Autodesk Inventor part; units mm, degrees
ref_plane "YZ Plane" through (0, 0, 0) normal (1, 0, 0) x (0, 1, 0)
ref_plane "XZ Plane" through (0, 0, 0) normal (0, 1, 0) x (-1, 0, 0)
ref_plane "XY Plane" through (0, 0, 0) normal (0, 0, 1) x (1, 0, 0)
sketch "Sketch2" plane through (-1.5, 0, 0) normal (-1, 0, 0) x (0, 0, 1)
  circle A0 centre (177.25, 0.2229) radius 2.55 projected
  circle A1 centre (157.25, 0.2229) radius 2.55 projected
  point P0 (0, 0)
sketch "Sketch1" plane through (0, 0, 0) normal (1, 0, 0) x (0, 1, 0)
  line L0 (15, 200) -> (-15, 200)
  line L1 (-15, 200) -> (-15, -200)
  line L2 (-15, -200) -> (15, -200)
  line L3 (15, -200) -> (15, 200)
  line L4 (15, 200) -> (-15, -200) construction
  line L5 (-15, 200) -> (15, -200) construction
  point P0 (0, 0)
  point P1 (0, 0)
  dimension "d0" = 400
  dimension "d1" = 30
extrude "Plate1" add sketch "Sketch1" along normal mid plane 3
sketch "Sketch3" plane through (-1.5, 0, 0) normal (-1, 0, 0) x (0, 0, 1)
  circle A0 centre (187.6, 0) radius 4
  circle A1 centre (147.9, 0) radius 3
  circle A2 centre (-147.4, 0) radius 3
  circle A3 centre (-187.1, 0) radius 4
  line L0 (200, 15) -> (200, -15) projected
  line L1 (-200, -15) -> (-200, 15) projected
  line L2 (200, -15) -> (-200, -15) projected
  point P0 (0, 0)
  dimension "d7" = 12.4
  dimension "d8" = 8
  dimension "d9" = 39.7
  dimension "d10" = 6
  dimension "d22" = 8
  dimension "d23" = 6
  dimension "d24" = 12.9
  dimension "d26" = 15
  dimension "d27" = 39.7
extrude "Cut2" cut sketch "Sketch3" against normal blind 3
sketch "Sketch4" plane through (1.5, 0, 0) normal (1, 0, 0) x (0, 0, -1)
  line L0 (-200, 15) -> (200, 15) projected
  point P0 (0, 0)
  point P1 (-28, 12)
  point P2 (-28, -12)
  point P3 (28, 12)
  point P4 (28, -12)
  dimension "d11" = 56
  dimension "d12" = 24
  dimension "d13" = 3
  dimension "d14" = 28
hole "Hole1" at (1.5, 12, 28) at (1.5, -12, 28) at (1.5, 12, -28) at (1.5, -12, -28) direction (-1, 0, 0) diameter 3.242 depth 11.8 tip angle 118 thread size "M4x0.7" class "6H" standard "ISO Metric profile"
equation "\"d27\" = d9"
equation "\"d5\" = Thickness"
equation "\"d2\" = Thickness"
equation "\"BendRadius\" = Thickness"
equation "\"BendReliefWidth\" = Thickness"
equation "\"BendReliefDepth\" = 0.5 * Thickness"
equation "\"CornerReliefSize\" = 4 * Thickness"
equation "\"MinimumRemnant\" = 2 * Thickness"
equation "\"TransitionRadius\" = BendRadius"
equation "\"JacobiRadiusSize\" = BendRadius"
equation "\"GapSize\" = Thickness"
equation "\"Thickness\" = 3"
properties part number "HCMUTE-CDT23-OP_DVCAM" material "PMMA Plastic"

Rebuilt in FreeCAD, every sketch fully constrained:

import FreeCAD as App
import Part
import Sketcher

doc = App.newDocument("Part")
body = doc.addObject("PartDesign::Body", "Body")

sketch1 = body.newObject("Sketcher::SketchObject", "Sketch")
sketch1.AttachmentSupport = (doc.getObject("YZ_Plane"), [""])
sketch1.MapMode = "FlatFace"
sketch1.addGeometry([
    Part.LineSegment(App.Vector(15, -200, 0), App.Vector(15, 200, 0)),
    Part.LineSegment(App.Vector(15, 200, 0), App.Vector(-15, 200, 0)),
    Part.LineSegment(App.Vector(-15, 200, 0), App.Vector(-15, -200, 0)),
    Part.LineSegment(App.Vector(-15, -200, 0), App.Vector(15, -200, 0)),
], False)
sketch1.addConstraint([
    Sketcher.Constraint("Coincident", 0, 2, 1, 1),
    Sketcher.Constraint("Coincident", 1, 2, 2, 1),
    Sketcher.Constraint("Coincident", 2, 2, 3, 1),
    Sketcher.Constraint("Coincident", 3, 2, 0, 1),
    Sketcher.Constraint("Vertical", 0),
    Sketcher.Constraint("Horizontal", 1),
    Sketcher.Constraint("Vertical", 2),
    Sketcher.Constraint("Horizontal", 3),
    Sketcher.Constraint("Symmetric", 0, 2, 2, 2, -1, 1),
    Sketcher.Constraint("DistanceX", 1, 2, 1, 1, 30.0),
    Sketcher.Constraint("DistanceY", 0, 1, 0, 2, 400.0),
])
pad1 = body.newObject("PartDesign::Pad", "Pad")
pad1.Profile = sketch1
pad1.Length = 3
pad1.Midplane = True

sketch2 = body.newObject("Sketcher::SketchObject", "Sketch001")
sketch2.AttachmentSupport = (doc.getObject("YZ_Plane"), [""])
sketch2.MapMode = "FlatFace"
sketch2.AttachmentOffset = App.Placement(App.Vector(0, 0, -1.5), App.Rotation())
sketch2.addGeometry([
    Part.Circle(App.Vector(0, 187.6, 0), App.Vector(0, 0, 1), 4),
    Part.Circle(App.Vector(0, 147.9, 0), App.Vector(0, 0, 1), 3),
    Part.Circle(App.Vector(0, -147.4, 0), App.Vector(0, 0, 1), 3),
    Part.Circle(App.Vector(0, -187.1, 0), App.Vector(0, 0, 1), 4),
], False)
sketch2.addConstraint([
    Sketcher.Constraint("Equal", 1, 2),
    Sketcher.Constraint("Equal", 0, 3),
    Sketcher.Constraint("PointOnObject", 0, 3, -2),
    Sketcher.Constraint("PointOnObject", 1, 3, -2),
    Sketcher.Constraint("PointOnObject", 2, 3, -2),
    Sketcher.Constraint("PointOnObject", 3, 3, -2),
    Sketcher.Constraint("Diameter", 0, 8.0),
    Sketcher.Constraint("Diameter", 1, 6.0),
    Sketcher.Constraint("DistanceY", 1, 3, 0, 3, 39.7),
    Sketcher.Constraint("DistanceY", 3, 3, 2, 3, 39.7),
    Sketcher.Constraint("DistanceY", 2, 3, 0, 3, 335.0),
    Sketcher.Constraint("DistanceY", -1, 1, 0, 3, 187.6),
])
pocket1 = body.newObject("PartDesign::Pocket", "Pocket")
pocket1.Profile = sketch2
pocket1.Length = 3
pocket1.Reversed = True

sketch3 = body.newObject("Sketcher::SketchObject", "Sketch002")
sketch3.AttachmentSupport = (doc.getObject("YZ_Plane"), [""])
sketch3.MapMode = "FlatFace"
sketch3.AttachmentOffset = App.Placement(App.Vector(0, 0, 1.5), App.Rotation())
sketch3.addGeometry([
    Part.Circle(App.Vector(12, 28, 0), App.Vector(0, 0, 1), 1.6),
    Part.Circle(App.Vector(-12, 28, 0), App.Vector(0, 0, 1), 1.6),
    Part.Circle(App.Vector(12, -28, 0), App.Vector(0, 0, 1), 1.6),
    Part.Circle(App.Vector(-12, -28, 0), App.Vector(0, 0, 1), 1.6),
], False)
sketch3.addConstraint([
    Sketcher.Constraint("Equal", 0, 1),
    Sketcher.Constraint("Equal", 1, 2),
    Sketcher.Constraint("Equal", 2, 3),
    Sketcher.Constraint("Symmetric", 1, 3, 2, 3, -1, 1),
    Sketcher.Constraint("Symmetric", 0, 3, 3, 3, -1, 1),
    Sketcher.Constraint("Symmetric", 0, 3, 1, 3, -2),
    Sketcher.Constraint("Diameter", 0, 3.242),
    Sketcher.Constraint("DistanceX", -1, 1, 0, 3, 12.0),
    Sketcher.Constraint("DistanceY", -1, 1, 0, 3, 28.0),
])
doc.recompute()
hole = body.newObject("PartDesign::Hole", "Hole")
hole.Profile = sketch3
hole.ThreadType = "None"
hole.Diameter = 3.242
hole.DepthType = "Dimension"
hole.Depth = 11.8
hole.DrillPoint = "Angled"
hole.DrillPointAngle = 118

doc.recompute()
